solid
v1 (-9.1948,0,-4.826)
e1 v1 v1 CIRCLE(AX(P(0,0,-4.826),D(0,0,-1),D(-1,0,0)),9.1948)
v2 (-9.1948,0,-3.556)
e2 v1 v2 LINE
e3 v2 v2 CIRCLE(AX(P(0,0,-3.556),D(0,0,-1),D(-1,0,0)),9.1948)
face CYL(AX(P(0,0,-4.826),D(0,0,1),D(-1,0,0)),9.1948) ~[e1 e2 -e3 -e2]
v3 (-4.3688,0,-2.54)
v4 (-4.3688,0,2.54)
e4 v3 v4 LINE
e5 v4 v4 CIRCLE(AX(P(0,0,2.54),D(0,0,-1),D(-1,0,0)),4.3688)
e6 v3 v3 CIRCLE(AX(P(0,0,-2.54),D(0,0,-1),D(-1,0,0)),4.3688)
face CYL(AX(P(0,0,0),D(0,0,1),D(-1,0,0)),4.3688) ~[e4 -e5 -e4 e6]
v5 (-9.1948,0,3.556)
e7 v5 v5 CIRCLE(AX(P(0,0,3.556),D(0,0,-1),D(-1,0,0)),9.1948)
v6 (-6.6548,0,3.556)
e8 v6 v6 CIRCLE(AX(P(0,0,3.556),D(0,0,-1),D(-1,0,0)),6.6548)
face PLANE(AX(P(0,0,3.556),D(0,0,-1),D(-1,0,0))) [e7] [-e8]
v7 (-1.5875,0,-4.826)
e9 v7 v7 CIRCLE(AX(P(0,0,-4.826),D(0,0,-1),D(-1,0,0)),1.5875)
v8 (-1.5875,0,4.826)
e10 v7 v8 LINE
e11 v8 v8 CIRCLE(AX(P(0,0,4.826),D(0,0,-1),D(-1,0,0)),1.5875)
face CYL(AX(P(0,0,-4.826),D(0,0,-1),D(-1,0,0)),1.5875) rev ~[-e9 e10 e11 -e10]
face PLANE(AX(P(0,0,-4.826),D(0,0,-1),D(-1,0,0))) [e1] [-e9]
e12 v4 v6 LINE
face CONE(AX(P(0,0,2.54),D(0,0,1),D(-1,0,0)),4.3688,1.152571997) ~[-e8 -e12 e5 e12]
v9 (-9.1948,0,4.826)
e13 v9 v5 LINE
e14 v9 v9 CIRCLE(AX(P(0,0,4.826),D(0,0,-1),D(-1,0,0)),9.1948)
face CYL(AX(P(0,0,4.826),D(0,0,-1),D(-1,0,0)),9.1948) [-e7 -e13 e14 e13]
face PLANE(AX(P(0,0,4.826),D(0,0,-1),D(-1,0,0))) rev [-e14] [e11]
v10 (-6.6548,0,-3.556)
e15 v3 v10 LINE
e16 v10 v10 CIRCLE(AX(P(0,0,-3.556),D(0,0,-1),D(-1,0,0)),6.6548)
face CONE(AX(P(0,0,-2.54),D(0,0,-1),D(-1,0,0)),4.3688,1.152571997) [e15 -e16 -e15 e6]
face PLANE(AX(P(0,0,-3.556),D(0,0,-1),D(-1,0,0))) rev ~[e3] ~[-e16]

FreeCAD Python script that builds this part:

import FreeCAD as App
import Part
import Sketcher

V = App.Vector
Q = App.Units.Quantity


def add_polygon(sketch, points):
    """Adds a closed chain of lines whose ends are joined by coincident constraints."""
    first, n = sketch.GeometryCount, len(points)
    for a, b in zip(points, points[1:] + points[:1]):
        sketch.addGeometry(Part.LineSegment(App.Vector(*a, 0), App.Vector(*b, 0)), False)
    for i in range(n):
        sketch.addConstraint(Sketcher.Constraint("Coincident", first + i, 2, first + (i + 1) % n, 1))

doc = App.newDocument("Part")
body = doc.addObject("PartDesign::Body", "Body")

sketch1 = doc.addObject("Sketcher::SketchObject", "Sketch")
body.addObject(sketch1)
sketch1.AttachmentSupport = (doc.XZ_Plane, [""])
sketch1.MapMode = "FlatFace"
add_polygon(sketch1, [(0, 4.8), (0, -4.8), (-9.2, -4.8), (-9.2, -3.6), (-6.7, -3.6), (-4.4, -2.5), (-4.4, 2.5), (-6.7, 3.6), (-9.2, 3.6), (-9.2, 4.8)])
sketch1.addConstraint([
    Sketcher.Constraint("Vertical", 0),
    Sketcher.Constraint("Horizontal", 1),
    Sketcher.Constraint("Vertical", 2),
    Sketcher.Constraint("Horizontal", 3),
    Sketcher.Constraint("Vertical", 5),
    Sketcher.Constraint("Horizontal", 7),
    Sketcher.Constraint("Vertical", 8),
    Sketcher.Constraint("Horizontal", 9),
    Sketcher.Constraint("Symmetric", 0, 2, 9, 2, -1, 1),
    Sketcher.Constraint("Symmetric", 3, 2, 6, 2, -1),
    Sketcher.Constraint("Vertical", 2, 2, 7, 2),
    Sketcher.Constraint("Equal", 4, 6),
    Sketcher.Constraint("DistanceX", 3, 1, 3, 2, Q("0.1 in")),
    Sketcher.Constraint("DistanceY", 2, 1, 2, 2, Q("0.05 in")),
    Sketcher.Constraint("DistanceY", 4, 2, -1, 1, Q("0.1 in")),
    Sketcher.Constraint("DistanceX", 1, 2, 1, 1, Q("0.362 in")),
    Sketcher.Constraint("DistanceY", 0, 2, -1, 1, Q("0.19 in")),
    Sketcher.Constraint("DistanceX", 2, 2, 4, 2, Q("0.19 in")),
])
revolution = doc.addObject("PartDesign::Revolution", "Revolution")
body.addObject(revolution)
revolution.Profile = sketch1
revolution.ReferenceAxis = (sketch1, ["V_Axis"])
revolution.Angle = 360

sketch2 = doc.addObject("Sketcher::SketchObject", "Sketch001")
body.addObject(sketch2)
sketch2.AttachmentSupport = (doc.XY_Plane, [""])
sketch2.MapMode = "FlatFace"
sketch2.AttachmentOffset = App.Placement(V(0, 0, -0.19 * 25.4), App.Rotation())
sketch2.addGeometry(Part.Circle(V(0, 0, 0), V(0, 0, 1), 1.6), False)
sketch2.addConstraint([
    Sketcher.Constraint("Coincident", 0, 3, -1, 1),
    Sketcher.Constraint("Diameter", 0, Q("0.125 in")),
])
pocket1 = doc.addObject("PartDesign::Pocket", "Pocket")
body.addObject(pocket1)
pocket1.Profile = sketch2
pocket1.Type = "ThroughAll"
pocket1.Reversed = True

doc.recompute()
